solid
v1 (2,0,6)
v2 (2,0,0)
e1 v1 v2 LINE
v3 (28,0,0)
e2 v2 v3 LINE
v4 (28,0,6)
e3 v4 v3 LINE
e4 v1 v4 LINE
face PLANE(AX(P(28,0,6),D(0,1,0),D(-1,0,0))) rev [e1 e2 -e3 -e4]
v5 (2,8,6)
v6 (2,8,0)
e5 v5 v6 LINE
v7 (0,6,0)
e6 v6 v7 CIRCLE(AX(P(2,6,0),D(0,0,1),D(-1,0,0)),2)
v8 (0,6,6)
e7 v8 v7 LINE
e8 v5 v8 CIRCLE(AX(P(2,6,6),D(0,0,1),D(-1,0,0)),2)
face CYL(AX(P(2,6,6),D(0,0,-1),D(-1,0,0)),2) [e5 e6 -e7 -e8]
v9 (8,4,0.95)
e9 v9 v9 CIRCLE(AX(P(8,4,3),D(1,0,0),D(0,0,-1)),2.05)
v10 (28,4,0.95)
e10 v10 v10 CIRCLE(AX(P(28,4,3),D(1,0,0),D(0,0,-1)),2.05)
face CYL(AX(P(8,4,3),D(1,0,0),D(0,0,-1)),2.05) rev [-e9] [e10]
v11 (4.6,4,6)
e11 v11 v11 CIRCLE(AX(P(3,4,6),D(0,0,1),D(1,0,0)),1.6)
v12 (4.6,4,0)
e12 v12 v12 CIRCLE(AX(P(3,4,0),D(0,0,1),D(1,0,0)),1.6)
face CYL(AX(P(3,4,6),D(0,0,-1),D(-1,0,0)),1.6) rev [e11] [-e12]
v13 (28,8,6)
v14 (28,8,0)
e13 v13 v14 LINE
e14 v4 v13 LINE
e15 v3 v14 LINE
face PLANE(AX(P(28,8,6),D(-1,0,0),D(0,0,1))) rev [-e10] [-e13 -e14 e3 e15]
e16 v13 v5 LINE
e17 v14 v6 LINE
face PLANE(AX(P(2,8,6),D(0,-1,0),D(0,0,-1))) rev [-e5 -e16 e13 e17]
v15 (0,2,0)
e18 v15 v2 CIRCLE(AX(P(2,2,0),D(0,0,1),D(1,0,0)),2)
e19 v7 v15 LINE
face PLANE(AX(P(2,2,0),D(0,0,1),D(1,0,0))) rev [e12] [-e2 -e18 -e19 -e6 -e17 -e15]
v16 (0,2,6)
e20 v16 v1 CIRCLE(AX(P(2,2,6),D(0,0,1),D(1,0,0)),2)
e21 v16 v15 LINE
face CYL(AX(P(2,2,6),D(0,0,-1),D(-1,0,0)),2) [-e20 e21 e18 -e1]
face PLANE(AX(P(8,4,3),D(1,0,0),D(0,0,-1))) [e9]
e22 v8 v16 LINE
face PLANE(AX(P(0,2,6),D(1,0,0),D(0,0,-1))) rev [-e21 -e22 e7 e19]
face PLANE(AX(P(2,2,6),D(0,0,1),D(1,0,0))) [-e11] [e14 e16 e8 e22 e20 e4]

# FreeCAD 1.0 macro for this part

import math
import FreeCAD as App
import Part
import Sketcher
Q = App.Units.Quantity

doc = App.newDocument("Part")
body = doc.addObject("PartDesign::Body", "Body")

sketch1 = body.newObject("Sketcher::SketchObject", "Sketch")
sketch1.AttachmentSupport = (doc.getObject("XY_Plane"), [""])
sketch1.MapMode = "FlatFace"
sketch1.addGeometry([
    Part.LineSegment(App.Vector(0, 6, 0), App.Vector(0, 2, 0)),
    Part.ArcOfCircle(Part.Circle(App.Vector(2, 2, 0), App.Vector(0, 0, 1), 2), math.radians(-180), math.radians(-90)),
    Part.LineSegment(App.Vector(2, 0, 0), App.Vector(28, 0, 0)),
    Part.LineSegment(App.Vector(28, 0, 0), App.Vector(28, 8, 0)),
    Part.LineSegment(App.Vector(28, 8, 0), App.Vector(2, 8, 0)),
    Part.ArcOfCircle(Part.Circle(App.Vector(2, 6, 0), App.Vector(0, 0, 1), 2), math.radians(90), math.radians(180)),
    Part.Circle(App.Vector(3, 4, 0), App.Vector(0, 0, 1), 1.6),
], False)
sketch1.addConstraint([
    Sketcher.Constraint("Tangent", 0, 2, 1, 1),
    Sketcher.Constraint("Tangent", 1, 2, 2, 1),
    Sketcher.Constraint("Coincident", 2, 2, 3, 1),
    Sketcher.Constraint("Coincident", 3, 2, 4, 1),
    Sketcher.Constraint("Tangent", 4, 2, 5, 1),
    Sketcher.Constraint("Tangent", 5, 2, 0, 1),
    Sketcher.Constraint("Vertical", 0),
    Sketcher.Constraint("Horizontal", 2),
    Sketcher.Constraint("Vertical", 3),
    Sketcher.Constraint("Horizontal", 4),
    Sketcher.Constraint("Equal", 1, 5),
    Sketcher.Constraint("PointOnObject", 0, 2, -2),
    Sketcher.Constraint("PointOnObject", 1, 2, -1),
    Sketcher.Constraint("Radius", 1, Q("2 mm")),
    Sketcher.Constraint("Diameter", 6, Q("3.2 mm")),
    Sketcher.Constraint("DistanceX", 2, 1, 2, 2, Q("26 mm")),
    Sketcher.Constraint("DistanceY", 0, 2, 0, 1, Q("4 mm")),
    Sketcher.Constraint("DistanceX", -1, 1, 6, 3, Q("3 mm")),
    Sketcher.Constraint("DistanceY", -1, 1, 6, 3, Q("4 mm")),
])
pad1 = body.newObject("PartDesign::Pad", "Pad")
pad1.Profile = sketch1
pad1.Length = 6

sketch2 = body.newObject("Sketcher::SketchObject", "Sketch001")
sketch2.AttachmentSupport = (doc.getObject("YZ_Plane"), [""])
sketch2.MapMode = "FlatFace"
sketch2.AttachmentOffset = App.Placement(App.Vector(0, 0, 28), App.Rotation())
sketch2.addGeometry(Part.Circle(App.Vector(4, 3, 0), App.Vector(0, 0, 1), 2), False)
sketch2.addConstraint([
    Sketcher.Constraint("Diameter", 0, Q("4.1 mm")),
    Sketcher.Constraint("DistanceX", -1, 1, 0, 3, Q("4 mm")),
    Sketcher.Constraint("DistanceY", -1, 1, 0, 3, Q("3 mm")),
])
pocket1 = body.newObject("PartDesign::Pocket", "Pocket")
pocket1.Profile = sketch2
pocket1.Length = 20

doc.recompute()
